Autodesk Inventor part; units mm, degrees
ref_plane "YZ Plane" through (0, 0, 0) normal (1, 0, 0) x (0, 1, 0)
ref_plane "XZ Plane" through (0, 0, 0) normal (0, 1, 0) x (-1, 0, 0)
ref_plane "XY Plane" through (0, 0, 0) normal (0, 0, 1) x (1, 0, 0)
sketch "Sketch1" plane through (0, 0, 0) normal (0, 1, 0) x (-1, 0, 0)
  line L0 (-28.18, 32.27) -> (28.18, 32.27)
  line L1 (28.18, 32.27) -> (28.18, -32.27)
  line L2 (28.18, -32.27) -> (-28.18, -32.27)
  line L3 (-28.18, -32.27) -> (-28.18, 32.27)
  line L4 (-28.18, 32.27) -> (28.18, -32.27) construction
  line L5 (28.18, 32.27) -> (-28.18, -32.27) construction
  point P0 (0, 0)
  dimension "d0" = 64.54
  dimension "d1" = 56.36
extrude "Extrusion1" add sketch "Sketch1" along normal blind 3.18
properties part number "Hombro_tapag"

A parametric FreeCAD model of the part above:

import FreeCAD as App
import Part
import Sketcher

V = App.Vector
Q = App.Units.Quantity


def add_polygon(sketch, points):
    """Adds a closed chain of lines whose ends are joined by coincident constraints."""
    first, n = sketch.GeometryCount, len(points)
    for a, b in zip(points, points[1:] + points[:1]):
        sketch.addGeometry(Part.LineSegment(App.Vector(*a, 0), App.Vector(*b, 0)), False)
    for i in range(n):
        sketch.addConstraint(Sketcher.Constraint("Coincident", first + i, 2, first + (i + 1) % n, 1))

doc = App.newDocument("Part")
params = doc.addObject("Spreadsheet::Sheet", "Params")
for row, (alias, value) in enumerate([
    ("sketch1_width", "56.36 mm"),
    ("sketch1_height", "64.54 mm"),
    ("pad1_length", "3.18 mm"),
], start=1):
    params.set(f"A{row}", alias)
    params.set(f"B{row}", "=" + value)
    params.setAlias(f"B{row}", alias)

body = doc.addObject("PartDesign::Body", "Body")

# Sketch on XZ plane
sketch1 = body.newObject("Sketcher::SketchObject", "Sketch")
sketch1.AttachmentSupport = (doc.getObject("XZ_Plane"), [""])
sketch1.MapMode = "FlatFace"
add_polygon(sketch1, [(-28.18, 32.27), (28.18, 32.27), (28.18, -32.27), (-28.18, -32.27)])  # lines 0-3
sketch1.addConstraint(Sketcher.Constraint("Horizontal", 0))
sketch1.addConstraint(Sketcher.Constraint("Vertical", 1))
sketch1.addConstraint(Sketcher.Constraint("Horizontal", 2))
sketch1.addConstraint(Sketcher.Constraint("Vertical", 3))
sketch1.addConstraint(Sketcher.Constraint("Symmetric", 0, 2, 2, 2, -1, 1))
sketch1.addConstraint(Sketcher.Constraint("DistanceX", 0, 1, 0, 2, Q("56.36 mm")))
sketch1.addConstraint(Sketcher.Constraint("DistanceY", 1, 2, 1, 1, Q("64.54 mm")))
sketch1.setExpression("Constraints[9]", "Params.sketch1_width")
sketch1.setExpression("Constraints[10]", "Params.sketch1_height")
pad1 = body.newObject("PartDesign::Pad", "Pad")
pad1.Profile = sketch1
pad1.setExpression("Length", "Params.pad1_length")
pad1.Reversed = True

doc.recompute()
